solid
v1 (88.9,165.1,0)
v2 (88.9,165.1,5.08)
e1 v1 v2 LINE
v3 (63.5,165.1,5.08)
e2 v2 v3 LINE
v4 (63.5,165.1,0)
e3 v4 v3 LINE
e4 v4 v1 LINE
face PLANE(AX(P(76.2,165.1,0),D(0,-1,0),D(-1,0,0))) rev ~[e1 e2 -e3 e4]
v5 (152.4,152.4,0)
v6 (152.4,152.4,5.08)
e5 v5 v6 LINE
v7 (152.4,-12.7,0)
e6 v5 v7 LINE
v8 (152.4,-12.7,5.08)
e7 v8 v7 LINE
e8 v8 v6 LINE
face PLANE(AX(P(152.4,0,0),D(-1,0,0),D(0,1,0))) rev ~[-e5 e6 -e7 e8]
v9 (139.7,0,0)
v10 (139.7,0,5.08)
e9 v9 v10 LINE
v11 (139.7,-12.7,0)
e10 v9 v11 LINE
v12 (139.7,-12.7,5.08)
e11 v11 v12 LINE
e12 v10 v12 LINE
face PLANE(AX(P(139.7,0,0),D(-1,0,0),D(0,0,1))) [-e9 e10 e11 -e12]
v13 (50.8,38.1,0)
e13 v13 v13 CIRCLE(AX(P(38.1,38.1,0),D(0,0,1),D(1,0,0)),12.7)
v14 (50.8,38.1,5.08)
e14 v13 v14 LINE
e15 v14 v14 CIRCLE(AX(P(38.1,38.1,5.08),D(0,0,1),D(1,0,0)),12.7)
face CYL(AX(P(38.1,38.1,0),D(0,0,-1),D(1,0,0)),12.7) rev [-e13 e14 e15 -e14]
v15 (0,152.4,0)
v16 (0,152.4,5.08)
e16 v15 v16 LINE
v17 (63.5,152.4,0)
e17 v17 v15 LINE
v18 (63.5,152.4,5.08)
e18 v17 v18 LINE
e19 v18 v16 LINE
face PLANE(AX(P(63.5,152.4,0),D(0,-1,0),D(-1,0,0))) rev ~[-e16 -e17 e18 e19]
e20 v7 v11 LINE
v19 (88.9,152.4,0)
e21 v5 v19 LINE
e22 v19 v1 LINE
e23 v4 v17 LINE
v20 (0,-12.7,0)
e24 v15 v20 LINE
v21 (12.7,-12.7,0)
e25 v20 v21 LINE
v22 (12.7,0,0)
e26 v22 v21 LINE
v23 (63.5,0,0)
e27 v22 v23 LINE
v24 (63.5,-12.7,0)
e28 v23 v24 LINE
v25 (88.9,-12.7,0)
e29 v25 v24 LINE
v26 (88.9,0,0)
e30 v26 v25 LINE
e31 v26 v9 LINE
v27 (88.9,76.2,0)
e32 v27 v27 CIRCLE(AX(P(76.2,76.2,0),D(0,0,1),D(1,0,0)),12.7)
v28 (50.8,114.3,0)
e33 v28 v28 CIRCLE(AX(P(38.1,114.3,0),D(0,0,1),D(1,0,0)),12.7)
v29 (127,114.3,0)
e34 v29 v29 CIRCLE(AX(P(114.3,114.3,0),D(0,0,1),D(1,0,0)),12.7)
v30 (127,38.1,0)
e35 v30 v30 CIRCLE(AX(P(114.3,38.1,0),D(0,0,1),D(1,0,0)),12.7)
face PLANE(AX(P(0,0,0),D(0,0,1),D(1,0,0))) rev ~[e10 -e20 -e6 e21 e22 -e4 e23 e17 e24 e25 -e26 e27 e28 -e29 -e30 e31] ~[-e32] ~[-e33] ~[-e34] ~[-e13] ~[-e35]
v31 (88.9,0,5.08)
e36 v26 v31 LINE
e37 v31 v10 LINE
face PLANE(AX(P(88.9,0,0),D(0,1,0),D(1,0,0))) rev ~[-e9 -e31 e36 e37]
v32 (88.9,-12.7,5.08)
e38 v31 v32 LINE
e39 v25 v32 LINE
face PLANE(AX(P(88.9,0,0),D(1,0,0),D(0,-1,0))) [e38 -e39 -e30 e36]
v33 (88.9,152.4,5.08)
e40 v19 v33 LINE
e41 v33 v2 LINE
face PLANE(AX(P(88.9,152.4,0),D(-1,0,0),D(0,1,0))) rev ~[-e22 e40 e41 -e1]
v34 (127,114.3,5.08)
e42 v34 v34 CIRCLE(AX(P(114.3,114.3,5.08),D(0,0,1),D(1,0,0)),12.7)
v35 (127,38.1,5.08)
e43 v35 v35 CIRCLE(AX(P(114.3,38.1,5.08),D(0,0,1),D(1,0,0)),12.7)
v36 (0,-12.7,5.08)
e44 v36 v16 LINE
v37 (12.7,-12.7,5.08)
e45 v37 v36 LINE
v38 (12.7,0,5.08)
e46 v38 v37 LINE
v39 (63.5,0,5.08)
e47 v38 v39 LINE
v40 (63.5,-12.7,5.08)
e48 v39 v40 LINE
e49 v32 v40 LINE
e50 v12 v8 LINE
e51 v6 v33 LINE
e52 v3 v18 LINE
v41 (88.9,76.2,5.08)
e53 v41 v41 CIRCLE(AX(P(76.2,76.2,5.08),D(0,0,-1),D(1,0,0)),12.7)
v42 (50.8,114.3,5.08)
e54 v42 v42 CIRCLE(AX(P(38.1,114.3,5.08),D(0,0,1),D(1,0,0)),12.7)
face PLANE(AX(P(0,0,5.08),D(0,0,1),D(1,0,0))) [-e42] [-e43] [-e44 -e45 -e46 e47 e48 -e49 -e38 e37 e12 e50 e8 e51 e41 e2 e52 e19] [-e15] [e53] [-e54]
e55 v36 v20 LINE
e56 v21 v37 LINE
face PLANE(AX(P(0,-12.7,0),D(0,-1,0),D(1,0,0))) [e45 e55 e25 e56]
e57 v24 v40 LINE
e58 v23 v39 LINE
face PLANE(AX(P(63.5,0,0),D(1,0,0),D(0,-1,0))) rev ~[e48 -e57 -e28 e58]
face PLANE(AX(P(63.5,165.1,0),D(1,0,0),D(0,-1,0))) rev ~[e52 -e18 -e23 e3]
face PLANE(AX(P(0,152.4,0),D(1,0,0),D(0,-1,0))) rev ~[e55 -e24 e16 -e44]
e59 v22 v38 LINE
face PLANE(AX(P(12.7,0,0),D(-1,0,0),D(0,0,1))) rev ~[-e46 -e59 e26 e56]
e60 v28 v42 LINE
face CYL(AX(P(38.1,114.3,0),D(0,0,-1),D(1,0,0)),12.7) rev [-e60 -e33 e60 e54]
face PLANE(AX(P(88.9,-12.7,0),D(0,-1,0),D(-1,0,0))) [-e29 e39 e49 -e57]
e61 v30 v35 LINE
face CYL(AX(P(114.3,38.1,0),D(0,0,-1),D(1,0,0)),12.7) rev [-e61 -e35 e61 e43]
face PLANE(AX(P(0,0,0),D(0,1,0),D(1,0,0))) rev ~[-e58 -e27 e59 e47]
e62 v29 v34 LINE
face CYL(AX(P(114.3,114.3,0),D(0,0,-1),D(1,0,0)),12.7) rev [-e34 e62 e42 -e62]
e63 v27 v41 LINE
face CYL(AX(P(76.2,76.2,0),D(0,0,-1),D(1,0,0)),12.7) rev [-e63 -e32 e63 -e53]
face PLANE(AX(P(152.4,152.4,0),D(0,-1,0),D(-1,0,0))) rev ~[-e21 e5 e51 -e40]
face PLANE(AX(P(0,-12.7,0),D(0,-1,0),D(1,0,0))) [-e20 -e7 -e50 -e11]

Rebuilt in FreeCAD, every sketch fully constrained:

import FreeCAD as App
import Part
import Sketcher
Q = App.Units.Quantity


def add_polygon(sketch, points):
    """Adds a closed chain of lines whose ends are joined by coincident constraints."""
    first, n = sketch.GeometryCount, len(points)
    for a, b in zip(points, points[1:] + points[:1]):
        sketch.addGeometry(Part.LineSegment(App.Vector(*a, 0), App.Vector(*b, 0)), False)
    for i in range(n):
        sketch.addConstraint(Sketcher.Constraint("Coincident", first + i, 2, first + (i + 1) % n, 1))

doc = App.newDocument("Part")
body = doc.addObject("PartDesign::Body", "Body")

# Sketch on XY plane
sketch1 = body.newObject("Sketcher::SketchObject", "Sketch")
sketch1.AttachmentSupport = (doc.getObject("XY_Plane"), [""])
sketch1.MapMode = "FlatFace"
add_polygon(sketch1, [(0, 152.4), (0, 0), (63.5, 0), (63.5, -12.7), (88.9, -12.7), (88.9, 0), (152.4, 0), (152.4, 152.4), (88.9, 152.4), (88.9, 165.1), (63.5, 165.1), (63.5, 152.4)])  # lines 0-11
sketch1.addGeometry(Part.Circle(App.Vector(38.1, 38.1, 0), App.Vector(0, 0, 1), 12.7), False)  # 12
sketch1.addGeometry(Part.Circle(App.Vector(38.1, 114.3, 0), App.Vector(0, 0, 1), 12.7), False)  # 13
sketch1.addGeometry(Part.Circle(App.Vector(76.2, 76.2, 0), App.Vector(0, 0, 1), 12.7), False)  # 14
sketch1.addGeometry(Part.Circle(App.Vector(114.3, 38.1, 0), App.Vector(0, 0, 1), 12.7), False)  # 15
sketch1.addGeometry(Part.Circle(App.Vector(114.3, 114.3, 0), App.Vector(0, 0, 1), 12.7), False)  # 16
sketch1.addConstraint(Sketcher.Constraint("Vertical", 0))
sketch1.addConstraint(Sketcher.Constraint("Horizontal", 1))
sketch1.addConstraint(Sketcher.Constraint("Vertical", 2))
sketch1.addConstraint(Sketcher.Constraint("Horizontal", 3))
sketch1.addConstraint(Sketcher.Constraint("Vertical", 4))
sketch1.addConstraint(Sketcher.Constraint("Horizontal", 5))
sketch1.addConstraint(Sketcher.Constraint("Vertical", 6))
sketch1.addConstraint(Sketcher.Constraint("Horizontal", 7))
sketch1.addConstraint(Sketcher.Constraint("Vertical", 8))
sketch1.addConstraint(Sketcher.Constraint("Horizontal", 9))
sketch1.addConstraint(Sketcher.Constraint("Vertical", 10))
sketch1.addConstraint(Sketcher.Constraint("Horizontal", 11))
sketch1.addConstraint(Sketcher.Constraint("Coincident", 0, 2, -1, 1))
sketch1.addConstraint(Sketcher.Constraint("Equal", 12, 13))
sketch1.addConstraint(Sketcher.Constraint("Equal", 13, 14))
sketch1.addConstraint(Sketcher.Constraint("Equal", 14, 15))
sketch1.addConstraint(Sketcher.Constraint("Equal", 15, 16))
sketch1.addConstraint(Sketcher.Constraint("PointOnObject", 4, 2, -1))
sketch1.addConstraint(Sketcher.Constraint("Horizontal", 12, 3, 15, 3))
sketch1.addConstraint(Sketcher.Constraint("Horizontal", 13, 3, 16, 3))
sketch1.addConstraint(Sketcher.Constraint("Horizontal", 7, 2, 10, 2))
sketch1.addConstraint(Sketcher.Constraint("Vertical", 12, 3, 13, 3))
sketch1.addConstraint(Sketcher.Constraint("Vertical", 15, 3, 16, 3))
sketch1.addConstraint(Sketcher.Constraint("Vertical", 4, 2, 7, 2))
sketch1.addConstraint(Sketcher.Constraint("Vertical", 2, 2, 9, 2))
sketch1.addConstraint(Sketcher.Constraint("Equal", 1, 5))
sketch1.addConstraint(Sketcher.Constraint("Equal", 4, 8))
sketch1.addConstraint(Sketcher.Constraint("Diameter", 12, Q("1 in")))
sketch1.addConstraint(Sketcher.Constraint("DistanceX", 3, 1, 3, 2, Q("1 in")))
sketch1.addConstraint(Sketcher.Constraint("DistanceY", 0, 2, 0, 1, Q("6 in")))
sketch1.addConstraint(Sketcher.Constraint("DistanceX", 1, 1, 1, 2, Q("2.5 in")))
sketch1.addConstraint(Sketcher.Constraint("DistanceY", 2, 2, 2, 1, Q("0.5 in")))
sketch1.addConstraint(Sketcher.Constraint("DistanceX", -1, 1, 14, 3, Q("3 in")))
sketch1.addConstraint(Sketcher.Constraint("DistanceY", -1, 1, 14, 3, Q("3 in")))
sketch1.addConstraint(Sketcher.Constraint("DistanceY", 12, 3, 13, 3, Q("3 in")))
sketch1.addConstraint(Sketcher.Constraint("DistanceX", 12, 3, 15, 3, Q("3 in")))
sketch1.addConstraint(Sketcher.Constraint("DistanceX", 12, 3, 1, 2, Q("1 in")))
sketch1.addConstraint(Sketcher.Constraint("DistanceY", -1, 1, 12, 3, Q("1.5 in")))
pad1 = body.newObject("PartDesign::Pad", "Pad")
pad1.Profile = sketch1
pad1.Length = Q("0.2 in")

# Sketch on XZ plane
sketch2 = body.newObject("Sketcher::SketchObject", "Sketch001")
sketch2.AttachmentSupport = (doc.getObject("XZ_Plane"), [""])
sketch2.MapMode = "FlatFace"
add_polygon(sketch2, [(12.7, 0), (12.7, 5.08), (0, 5.08), (0, 0)])  # lines 0-3
add_polygon(sketch2, [(152.4, 5.08), (139.7, 5.08), (139.7, 0), (152.4, 0)])  # lines 4-7
sketch2.addConstraint(Sketcher.Constraint("Vertical", 0))
sketch2.addConstraint(Sketcher.Constraint("Horizontal", 1))
sketch2.addConstraint(Sketcher.Constraint("Vertical", 2))
sketch2.addConstraint(Sketcher.Constraint("Horizontal", 3))
sketch2.addConstraint(Sketcher.Constraint("Horizontal", 4))
sketch2.addConstraint(Sketcher.Constraint("Vertical", 5))
sketch2.addConstraint(Sketcher.Constraint("Horizontal", 6))
sketch2.addConstraint(Sketcher.Constraint("Vertical", 7))
sketch2.addConstraint(Sketcher.Constraint("Coincident", 2, 2, -1, 1))
sketch2.addConstraint(Sketcher.Constraint("PointOnObject", 5, 2, -1))
sketch2.addConstraint(Sketcher.Constraint("Horizontal", 1, 2, 4, 2))
sketch2.addConstraint(Sketcher.Constraint("Equal", 3, 4))
sketch2.addConstraint(Sketcher.Constraint("DistanceX", 1, 2, 1, 1, Q("0.5 in")))
sketch2.addConstraint(Sketcher.Constraint("DistanceY", 0, 1, 0, 2, Q("0.2 in")))
sketch2.addConstraint(Sketcher.Constraint("DistanceX", -1, 1, 6, 2, Q("6 in")))
pad2 = body.newObject("PartDesign::Pad", "Pad001")
pad2.Profile = sketch2
pad2.Length = Q("0.5 in")

doc.recompute()
